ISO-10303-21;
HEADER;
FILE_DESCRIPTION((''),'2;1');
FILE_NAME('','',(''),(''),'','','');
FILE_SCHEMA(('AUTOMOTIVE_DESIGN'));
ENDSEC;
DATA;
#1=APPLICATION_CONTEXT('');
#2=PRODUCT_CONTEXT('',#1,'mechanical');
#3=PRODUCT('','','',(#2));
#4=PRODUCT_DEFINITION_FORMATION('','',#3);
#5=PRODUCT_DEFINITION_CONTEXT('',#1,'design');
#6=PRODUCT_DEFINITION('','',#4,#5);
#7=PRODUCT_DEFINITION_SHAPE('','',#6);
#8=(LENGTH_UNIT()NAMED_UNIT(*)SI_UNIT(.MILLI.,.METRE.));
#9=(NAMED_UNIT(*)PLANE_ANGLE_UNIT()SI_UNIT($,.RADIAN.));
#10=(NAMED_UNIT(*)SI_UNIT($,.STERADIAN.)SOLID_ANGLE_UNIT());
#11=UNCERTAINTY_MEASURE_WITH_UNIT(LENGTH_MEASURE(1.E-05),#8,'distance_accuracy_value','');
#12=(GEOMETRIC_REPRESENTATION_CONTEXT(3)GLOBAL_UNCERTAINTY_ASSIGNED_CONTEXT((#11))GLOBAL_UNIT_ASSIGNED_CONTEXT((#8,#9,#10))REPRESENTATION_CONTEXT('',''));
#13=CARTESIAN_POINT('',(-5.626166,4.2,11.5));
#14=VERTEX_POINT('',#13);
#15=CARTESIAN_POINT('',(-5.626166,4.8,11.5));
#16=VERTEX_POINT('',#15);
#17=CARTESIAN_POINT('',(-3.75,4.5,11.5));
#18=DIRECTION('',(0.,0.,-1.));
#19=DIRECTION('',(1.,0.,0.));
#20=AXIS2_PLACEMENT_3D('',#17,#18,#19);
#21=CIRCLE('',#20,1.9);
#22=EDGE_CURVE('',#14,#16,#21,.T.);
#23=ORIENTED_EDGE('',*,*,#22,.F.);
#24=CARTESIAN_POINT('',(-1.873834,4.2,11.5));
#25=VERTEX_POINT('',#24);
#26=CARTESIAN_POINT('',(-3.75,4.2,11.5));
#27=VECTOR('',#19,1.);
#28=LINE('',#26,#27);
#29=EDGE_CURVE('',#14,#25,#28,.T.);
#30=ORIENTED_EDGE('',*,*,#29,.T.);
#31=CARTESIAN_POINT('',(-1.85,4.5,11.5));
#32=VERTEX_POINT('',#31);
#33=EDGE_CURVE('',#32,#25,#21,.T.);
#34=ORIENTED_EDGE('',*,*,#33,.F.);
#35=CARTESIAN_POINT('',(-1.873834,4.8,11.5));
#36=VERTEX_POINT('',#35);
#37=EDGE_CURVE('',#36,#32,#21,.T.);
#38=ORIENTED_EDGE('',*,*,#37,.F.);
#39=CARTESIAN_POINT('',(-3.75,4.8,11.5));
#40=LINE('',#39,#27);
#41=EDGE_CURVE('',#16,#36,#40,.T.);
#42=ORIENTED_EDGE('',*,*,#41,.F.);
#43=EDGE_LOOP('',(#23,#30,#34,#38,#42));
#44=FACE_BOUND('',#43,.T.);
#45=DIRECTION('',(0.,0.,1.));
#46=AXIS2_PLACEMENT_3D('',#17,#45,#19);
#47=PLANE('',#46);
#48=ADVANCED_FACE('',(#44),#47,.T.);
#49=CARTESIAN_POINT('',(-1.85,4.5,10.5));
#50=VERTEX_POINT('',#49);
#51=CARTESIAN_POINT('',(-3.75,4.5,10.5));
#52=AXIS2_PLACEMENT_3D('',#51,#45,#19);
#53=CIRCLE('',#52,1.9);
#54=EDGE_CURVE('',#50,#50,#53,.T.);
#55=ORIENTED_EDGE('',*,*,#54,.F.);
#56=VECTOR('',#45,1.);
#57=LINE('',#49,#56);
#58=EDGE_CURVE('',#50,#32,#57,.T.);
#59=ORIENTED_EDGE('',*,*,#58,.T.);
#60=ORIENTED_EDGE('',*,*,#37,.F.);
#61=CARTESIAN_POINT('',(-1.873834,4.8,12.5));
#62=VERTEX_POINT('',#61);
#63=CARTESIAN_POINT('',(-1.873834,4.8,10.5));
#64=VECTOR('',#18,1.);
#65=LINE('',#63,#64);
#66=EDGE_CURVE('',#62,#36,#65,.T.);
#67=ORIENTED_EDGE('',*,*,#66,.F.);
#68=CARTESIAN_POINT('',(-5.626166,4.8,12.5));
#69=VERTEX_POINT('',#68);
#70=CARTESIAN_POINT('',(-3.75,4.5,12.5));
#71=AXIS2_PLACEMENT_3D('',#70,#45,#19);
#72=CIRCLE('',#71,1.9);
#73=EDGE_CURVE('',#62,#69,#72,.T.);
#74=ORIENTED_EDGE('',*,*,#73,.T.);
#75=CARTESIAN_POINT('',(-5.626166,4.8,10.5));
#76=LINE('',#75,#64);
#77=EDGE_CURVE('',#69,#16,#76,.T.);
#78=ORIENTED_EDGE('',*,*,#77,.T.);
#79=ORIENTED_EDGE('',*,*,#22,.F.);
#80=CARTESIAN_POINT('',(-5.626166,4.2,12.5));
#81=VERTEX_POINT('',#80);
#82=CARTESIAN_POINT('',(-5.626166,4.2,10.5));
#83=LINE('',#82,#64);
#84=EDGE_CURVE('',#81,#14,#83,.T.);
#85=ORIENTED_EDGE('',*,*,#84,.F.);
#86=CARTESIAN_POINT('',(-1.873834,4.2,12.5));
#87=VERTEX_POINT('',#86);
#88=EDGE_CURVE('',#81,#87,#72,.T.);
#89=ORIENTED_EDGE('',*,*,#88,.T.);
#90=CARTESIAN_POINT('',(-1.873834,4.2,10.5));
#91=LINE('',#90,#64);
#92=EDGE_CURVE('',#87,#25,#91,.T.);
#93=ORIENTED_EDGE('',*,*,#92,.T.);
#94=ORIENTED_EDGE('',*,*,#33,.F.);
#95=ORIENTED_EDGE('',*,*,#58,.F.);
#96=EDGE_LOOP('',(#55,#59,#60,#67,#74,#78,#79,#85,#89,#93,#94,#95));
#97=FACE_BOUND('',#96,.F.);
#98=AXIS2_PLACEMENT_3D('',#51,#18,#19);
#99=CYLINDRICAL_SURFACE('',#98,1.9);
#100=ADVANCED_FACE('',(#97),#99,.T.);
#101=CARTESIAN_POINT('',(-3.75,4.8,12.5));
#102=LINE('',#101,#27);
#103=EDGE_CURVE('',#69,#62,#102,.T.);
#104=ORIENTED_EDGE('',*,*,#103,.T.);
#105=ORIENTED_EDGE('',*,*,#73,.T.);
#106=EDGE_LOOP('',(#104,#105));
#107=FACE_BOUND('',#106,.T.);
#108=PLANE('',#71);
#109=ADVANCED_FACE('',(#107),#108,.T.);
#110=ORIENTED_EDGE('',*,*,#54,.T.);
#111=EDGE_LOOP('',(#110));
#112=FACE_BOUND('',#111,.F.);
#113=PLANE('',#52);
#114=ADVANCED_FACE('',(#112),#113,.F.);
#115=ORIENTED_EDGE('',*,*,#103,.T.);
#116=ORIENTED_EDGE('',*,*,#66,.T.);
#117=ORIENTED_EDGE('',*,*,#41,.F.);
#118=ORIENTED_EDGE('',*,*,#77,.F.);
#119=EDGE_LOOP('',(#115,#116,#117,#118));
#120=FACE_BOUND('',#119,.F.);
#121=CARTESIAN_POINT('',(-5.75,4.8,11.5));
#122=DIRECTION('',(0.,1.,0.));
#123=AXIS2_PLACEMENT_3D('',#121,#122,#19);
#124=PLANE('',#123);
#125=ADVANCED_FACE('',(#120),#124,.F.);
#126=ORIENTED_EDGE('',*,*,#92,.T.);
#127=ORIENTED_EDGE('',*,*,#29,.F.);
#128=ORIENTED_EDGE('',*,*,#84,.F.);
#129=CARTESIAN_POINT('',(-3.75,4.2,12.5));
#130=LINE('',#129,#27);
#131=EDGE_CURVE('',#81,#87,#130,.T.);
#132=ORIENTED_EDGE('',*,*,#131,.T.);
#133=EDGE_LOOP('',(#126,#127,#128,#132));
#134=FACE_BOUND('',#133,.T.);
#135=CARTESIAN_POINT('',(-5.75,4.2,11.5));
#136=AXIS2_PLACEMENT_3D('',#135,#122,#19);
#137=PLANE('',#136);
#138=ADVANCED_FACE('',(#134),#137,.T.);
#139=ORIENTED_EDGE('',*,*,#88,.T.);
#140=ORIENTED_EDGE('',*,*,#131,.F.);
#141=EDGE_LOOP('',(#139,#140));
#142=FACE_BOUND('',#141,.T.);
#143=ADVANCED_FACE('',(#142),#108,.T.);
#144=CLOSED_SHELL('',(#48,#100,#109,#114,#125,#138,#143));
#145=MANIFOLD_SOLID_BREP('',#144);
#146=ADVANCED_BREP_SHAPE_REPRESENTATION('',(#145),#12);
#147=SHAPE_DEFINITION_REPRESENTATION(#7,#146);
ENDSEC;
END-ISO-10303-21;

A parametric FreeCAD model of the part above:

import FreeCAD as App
import Part
import Sketcher

V = App.Vector
Q = App.Units.Quantity

doc = App.newDocument("Part")
body = doc.addObject("PartDesign::Body", "Body")

# Sketch on XY plane
sketch1 = body.newObject("Sketcher::SketchObject", "Sketch")
sketch1.AttachmentSupport = (doc.getObject("XY_Plane"), [""])
sketch1.MapMode = "FlatFace"
sketch1.AttachmentOffset = App.Placement(V(0, 0, 1), App.Rotation())
sketch1.addGeometry([
    Part.LineSegment(V(-2, 0.3, 0), V(-2, -0.3, 0)),
    Part.LineSegment(V(-2, -0.3, 0), V(2, -0.3, 0)),
    Part.LineSegment(V(2, -0.3, 0), V(2, 0.3, 0)),
    Part.LineSegment(V(2, 0.3, 0), V(-2, 0.3, 0)),
], False)
sketch1.addConstraint([
    Sketcher.Constraint("Coincident", 0, 2, 1, 1),
    Sketcher.Constraint("Coincident", 1, 2, 2, 1),
    Sketcher.Constraint("Coincident", 2, 2, 3, 1),
    Sketcher.Constraint("Coincident", 3, 2, 0, 1),
    Sketcher.Constraint("Vertical", 0),
    Sketcher.Constraint("Horizontal", 1),
    Sketcher.Constraint("Vertical", 2),
    Sketcher.Constraint("Horizontal", 3),
    Sketcher.Constraint("Symmetric", 0, 2, 2, 2, -1, 1),
    Sketcher.Constraint("DistanceX", 1, 1, 1, 2, Q("4 mm")),
    Sketcher.Constraint("DistanceY", 0, 2, 0, 1, Q("0.6 mm")),
])
pad1 = body.newObject("PartDesign::Pad", "Pad")
pad1.Profile = sketch1
pad1.Length = 1
body2 = doc.addObject("PartDesign::Body", "Body001")

# Sketch on XY plane
sketch2 = body2.newObject("Sketcher::SketchObject", "Sketch001")
sketch2.AttachmentSupport = (doc.getObject("XY_Plane001"), [""])
sketch2.MapMode = "FlatFace"
sketch2.addGeometry(Part.Circle(V(0, 0, 0), V(0, 0, 1), 1.9), False)
sketch2.addConstraint([
    Sketcher.Constraint("Coincident", 0, 3, -1, 1),
    Sketcher.Constraint("Diameter", 0, Q("3.8 mm")),
])
pad2 = body2.newObject("PartDesign::Pad", "Pad001")
pad2.Profile = sketch2
pad2.Length = 2
doc.recompute()

boolean = body2.newObject("PartDesign::Boolean", "Boolean")
boolean.Type = "Cut"
boolean.addObjects([body])
body3 = doc.addObject("PartDesign::Body", "Body002")
doc.recompute()

body2.Placement = App.Placement(V(-3.75, 4.5, 10.5), App.Rotation(V(0, 0, 1), 0))
boolean2 = body3.newObject("PartDesign::Boolean", "Boolean001")
boolean2.Type = "Fuse"
boolean2.addObjects([body2])

doc.recompute()
